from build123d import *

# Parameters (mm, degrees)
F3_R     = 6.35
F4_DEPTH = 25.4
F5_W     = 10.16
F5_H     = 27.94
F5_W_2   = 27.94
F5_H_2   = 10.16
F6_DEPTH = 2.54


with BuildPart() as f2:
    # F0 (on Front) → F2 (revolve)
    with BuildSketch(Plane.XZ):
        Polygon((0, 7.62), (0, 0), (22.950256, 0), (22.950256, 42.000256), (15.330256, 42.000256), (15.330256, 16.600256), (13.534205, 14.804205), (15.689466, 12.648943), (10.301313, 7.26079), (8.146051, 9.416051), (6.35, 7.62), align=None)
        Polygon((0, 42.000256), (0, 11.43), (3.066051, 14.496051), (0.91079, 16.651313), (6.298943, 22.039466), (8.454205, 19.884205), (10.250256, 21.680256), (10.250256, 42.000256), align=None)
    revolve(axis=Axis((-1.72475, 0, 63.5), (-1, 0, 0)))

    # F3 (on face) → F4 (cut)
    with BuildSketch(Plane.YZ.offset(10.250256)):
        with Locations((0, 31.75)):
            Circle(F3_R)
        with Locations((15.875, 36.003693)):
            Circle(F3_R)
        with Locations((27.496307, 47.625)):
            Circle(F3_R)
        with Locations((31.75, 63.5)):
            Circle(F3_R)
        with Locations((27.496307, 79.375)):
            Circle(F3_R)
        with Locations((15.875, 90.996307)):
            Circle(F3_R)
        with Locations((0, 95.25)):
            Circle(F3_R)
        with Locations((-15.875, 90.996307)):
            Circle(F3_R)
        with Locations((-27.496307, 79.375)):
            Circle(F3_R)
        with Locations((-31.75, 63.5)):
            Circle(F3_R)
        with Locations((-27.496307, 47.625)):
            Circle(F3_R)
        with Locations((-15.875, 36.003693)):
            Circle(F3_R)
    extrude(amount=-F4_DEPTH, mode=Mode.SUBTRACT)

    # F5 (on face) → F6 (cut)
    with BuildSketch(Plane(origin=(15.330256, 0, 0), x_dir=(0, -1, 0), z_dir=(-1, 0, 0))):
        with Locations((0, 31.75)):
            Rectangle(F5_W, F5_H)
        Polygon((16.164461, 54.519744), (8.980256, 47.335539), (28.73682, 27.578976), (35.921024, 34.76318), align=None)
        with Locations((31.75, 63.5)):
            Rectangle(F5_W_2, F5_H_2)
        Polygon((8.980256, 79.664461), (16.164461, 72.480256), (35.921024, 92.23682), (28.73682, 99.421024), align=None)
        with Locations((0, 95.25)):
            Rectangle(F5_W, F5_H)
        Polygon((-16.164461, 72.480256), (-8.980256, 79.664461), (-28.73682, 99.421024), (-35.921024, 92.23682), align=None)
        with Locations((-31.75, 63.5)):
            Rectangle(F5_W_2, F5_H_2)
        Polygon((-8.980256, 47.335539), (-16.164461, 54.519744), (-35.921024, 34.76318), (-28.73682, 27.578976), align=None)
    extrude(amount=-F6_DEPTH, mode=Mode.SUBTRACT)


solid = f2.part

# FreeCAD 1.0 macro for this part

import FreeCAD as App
import Part
import Sketcher

V = App.Vector
Q = App.Units.Quantity


def add_polygon(sketch, points):
    """Adds a closed chain of lines whose ends are joined by coincident constraints."""
    first, n = sketch.GeometryCount, len(points)
    for a, b in zip(points, points[1:] + points[:1]):
        sketch.addGeometry(Part.LineSegment(App.Vector(*a, 0), App.Vector(*b, 0)), False)
    for i in range(n):
        sketch.addConstraint(Sketcher.Constraint("Coincident", first + i, 2, first + (i + 1) % n, 1))

doc = App.newDocument("Part")
params = doc.addObject("Spreadsheet::Sheet", "Params")
for row, (alias, value) in enumerate([
    ("sketch1_height", "1 in"),
    ("sketch1_width", "0.3 in"),
    ("sketch1_height2", "0.8 in"),
    ("sketch1_length", "0.1 in"),
    ("sketch1_length2", "0.3 in"),
    ("revolution_angle", "360 deg"),
    ("sketch2_diameter", "0.5 in"),
    ("pocket1_length", "1 in"),
    ("sketch3_width", "0.4 in"),
    ("sketch3_width2", "1.1 in"),
    ("sketch3_length", "0.4 in"),
    ("sketch3_length2", "1.1 in"),
    ("pocket2_length", "0.1 in"),
], start=1):
    params.set(f"A{row}", alias)
    params.set(f"B{row}", "=" + value)
    params.setAlias(f"B{row}", alias)

body = doc.addObject("PartDesign::Body", "Body")
body.AllowCompound = True

sketch1 = doc.addObject("Sketcher::SketchObject", "Sketch")
body.addObject(sketch1)
sketch1.AttachmentSupport = (doc.XZ_Plane, [""])
sketch1.MapMode = "FlatFace"
add_polygon(sketch1, [(0, 7.6), (0, 0), (23, 0), (23, 42), (15.3, 42), (15.3, 16.6), (13.5, 14.8), (15.7, 12.6), (10.3, 7.3), (8.1, 9.4), (6.3, 7.6)])
add_polygon(sketch1, [(0, 42), (0, 11.4), (3.1, 14.5), (0.9, 16.7), (6.3, 22), (8.5, 19.9), (10.3, 21.7), (10.3, 42)])
sketch1.addGeometry(Part.LineSegment(V(23, 63.5, 0), V(0, 63.5, 0)), True)
sketch1.addConstraint([
    Sketcher.Constraint("Vertical", 0),
    Sketcher.Constraint("Horizontal", 1),
    Sketcher.Constraint("Vertical", 2),
    Sketcher.Constraint("Horizontal", 3),
    Sketcher.Constraint("Vertical", 4),
    Sketcher.Constraint("Horizontal", 10),
    Sketcher.Constraint("Vertical", 11),
    Sketcher.Constraint("Vertical", 17),
    Sketcher.Constraint("Horizontal", 18),
    Sketcher.Constraint("Horizontal", 19),
    Sketcher.Constraint("Coincident", 0, 2, -1, 1),
    Sketcher.Constraint("PointOnObject", 11, 2, -2),
    Sketcher.Constraint("PointOnObject", 19, 2, -2),
    Sketcher.Constraint("Perpendicular", 5, 6),
    Sketcher.Constraint("Perpendicular", 6, 7),
    Sketcher.Constraint("Perpendicular", 7, 8),
    Sketcher.Constraint("Perpendicular", 8, 9),
    Sketcher.Constraint("Parallel", 9, 12),
    Sketcher.Constraint("Perpendicular", 12, 13),
    Sketcher.Constraint("Perpendicular", 13, 14),
    Sketcher.Constraint("Perpendicular", 14, 15),
    Sketcher.Constraint("Perpendicular", 15, 16),
    Sketcher.Constraint("Horizontal", 3, 2, 17, 2),
    Sketcher.Constraint("Vertical", 2, 2, 19, 1),
    Sketcher.Constraint("Equal", 3, 0),
    Sketcher.Constraint("Equal", 6, 8),
    Sketcher.Constraint("Equal", 5, 9),
    Sketcher.Constraint("Equal", 8, 13),
    Sketcher.Constraint("Equal", 7, 14),
    Sketcher.Constraint("Equal", 13, 15),
    Sketcher.Constraint("Equal", 9, 16),
    Sketcher.Constraint("DistanceY", 4, 2, 4, 1, Q("1 in")),
    Sketcher.Constraint("DistanceX", 3, 2, 3, 1, Q("0.3 in")),
    Sketcher.Constraint("DistanceY", 17, 1, 17, 2, Q("0.8 in")),
    Sketcher.Constraint("Angle", 5, Q("-135 deg")),
    Sketcher.Constraint("Distance", 5, Q("0.1 in")),
    Sketcher.Constraint("Distance", 7, Q("0.3 in")),
    Sketcher.Constraint("DistanceX", 10, 2, 10, 1, Q("0.25 in")),
    Sketcher.Constraint("DistanceY", -1, 1, 19, 1, Q("2.5 in")),
    Sketcher.Constraint("DistanceX", 12, 2, 8, 2, Q("0.2 in")),
    Sketcher.Constraint("Distance", 6, Q("0.12 in")),
])
sketch1.setExpression("Constraints[50]", "Params.sketch1_height")
sketch1.setExpression("Constraints[51]", "Params.sketch1_width")
sketch1.setExpression("Constraints[52]", "Params.sketch1_height2")
sketch1.setExpression("Constraints[54]", "Params.sketch1_length")
sketch1.setExpression("Constraints[55]", "Params.sketch1_length2")
revolution = doc.addObject("PartDesign::Revolution", "Revolution")
body.addObject(revolution)
revolution.Profile = sketch1
revolution.ReferenceAxis = (sketch1, ["Axis0"])
revolution.setExpression("Angle", "Params.revolution_angle")

sketch2 = doc.addObject("Sketcher::SketchObject", "Sketch001")
body.addObject(sketch2)
sketch2.AttachmentSupport = (doc.YZ_Plane, [""])
sketch2.MapMode = "FlatFace"
sketch2.AttachmentOffset = App.Placement(V(0, 0, 10.250256), App.Rotation())
sketch2.addGeometry([
    Part.Circle(V(0, 32, 0), V(0, 0, 1), 6),
    Part.Circle(V(16, 36, 0), V(0, 0, 1), 6),
    Part.Circle(V(27, 48, 0), V(0, 0, 1), 6),
    Part.Circle(V(32, 64, 0), V(0, 0, 1), 6),
    Part.Circle(V(27, 79, 0), V(0, 0, 1), 6),
    Part.Circle(V(16, 91, 0), V(0, 0, 1), 6),
    Part.Circle(V(0, 95, 0), V(0, 0, 1), 6),
    Part.Circle(V(-16, 91, 0), V(0, 0, 1), 6),
    Part.Circle(V(-27, 79, 0), V(0, 0, 1), 6),
    Part.Circle(V(-32, 64, 0), V(0, 0, 1), 6),
    Part.Circle(V(-27, 48, 0), V(0, 0, 1), 6),
    Part.Circle(V(-16, 36, 0), V(0, 0, 1), 6),
], False)
sketch2.addConstraint([
    Sketcher.Constraint("Equal", 0, 1),
    Sketcher.Constraint("Equal", 1, 2),
    Sketcher.Constraint("Equal", 2, 3),
    Sketcher.Constraint("Equal", 3, 4),
    Sketcher.Constraint("Equal", 4, 5),
    Sketcher.Constraint("Equal", 5, 6),
    Sketcher.Constraint("Equal", 6, 7),
    Sketcher.Constraint("Equal", 7, 8),
    Sketcher.Constraint("Equal", 8, 9),
    Sketcher.Constraint("Equal", 9, 10),
    Sketcher.Constraint("Equal", 10, 11),
    Sketcher.Constraint("Symmetric", 5, 3, 7, 3, -2),
    Sketcher.Constraint("Symmetric", 4, 3, 8, 3, -2),
    Sketcher.Constraint("Symmetric", 3, 3, 9, 3, -2),
    Sketcher.Constraint("Symmetric", 2, 3, 10, 3, -2),
    Sketcher.Constraint("Symmetric", 1, 3, 11, 3, -2),
    Sketcher.Constraint("PointOnObject", 0, 3, -2),
    Sketcher.Constraint("PointOnObject", 6, 3, -2),
    Sketcher.Constraint("Vertical", 2, 3, 4, 3),
    Sketcher.Constraint("Vertical", 1, 3, 5, 3),
    Sketcher.Constraint("Diameter", 0, Q("0.5 in")),
    Sketcher.Constraint("DistanceY", -1, 1, 3, 3, Q("2.5 in")),
    Sketcher.Constraint("DistanceY", -1, 1, 0, 3, Q("1.25 in")),
    Sketcher.Constraint("DistanceX", -1, 1, 3, 3, Q("1.25 in")),
    Sketcher.Constraint("DistanceY", -1, 1, 6, 3, Q("3.75 in")),
    Sketcher.Constraint("DistanceY", 2, 3, 4, 3, Q("1.25 in")),
    Sketcher.Constraint("DistanceX", 7, 3, 5, 3, Q("1.25 in")),
    Sketcher.Constraint("DistanceY", -1, 1, 2, 3, Q("1.875 in")),
    Sketcher.Constraint("DistanceY", -1, 1, 1, 3, 36.003693),
    Sketcher.Constraint("DistanceX", -1, 1, 2, 3, 27.496307),
    Sketcher.Constraint("DistanceY", -1, 1, 5, 3, 90.996307),
])
sketch2.setExpression("Constraints[20]", "Params.sketch2_diameter")
pocket1 = doc.addObject("PartDesign::Pocket", "Pocket")
body.addObject(pocket1)
pocket1.Profile = sketch2
pocket1.setExpression("Length", "Params.pocket1_length")

sketch3 = doc.addObject("Sketcher::SketchObject", "Sketch002")
body.addObject(sketch3)
sketch3.AttachmentSupport = (doc.YZ_Plane, [""])
sketch3.MapMode = "FlatFace"
sketch3.AttachmentOffset = App.Placement(V(0, 0, 15.330256), App.Rotation())
add_polygon(sketch3, [(5, 46), (5, 18), (-5, 18), (-5, 46)])
add_polygon(sketch3, [(-16, 55), (-9, 47), (-29, 28), (-36, 35)])
add_polygon(sketch3, [(-18, 69), (-18, 58), (-46, 58), (-46, 69)])
add_polygon(sketch3, [(-9, 80), (-16, 72), (-36, 92), (-29, 99)])
add_polygon(sketch3, [(5, 109), (5, 81), (-5, 81), (-5, 109)])
add_polygon(sketch3, [(16, 72), (9, 80), (29, 99), (36, 92)])
add_polygon(sketch3, [(46, 69), (46, 58), (18, 58), (18, 69)])
add_polygon(sketch3, [(9, 47), (16, 55), (36, 35), (29, 28)])
sketch3.addConstraint([
    Sketcher.Constraint("Vertical", 0),
    Sketcher.Constraint("Horizontal", 1),
    Sketcher.Constraint("Vertical", 2),
    Sketcher.Constraint("Horizontal", 3),
    Sketcher.Constraint("Vertical", 8),
    Sketcher.Constraint("Horizontal", 9),
    Sketcher.Constraint("Vertical", 10),
    Sketcher.Constraint("Horizontal", 11),
    Sketcher.Constraint("Vertical", 16),
    Sketcher.Constraint("Horizontal", 17),
    Sketcher.Constraint("Vertical", 18),
    Sketcher.Constraint("Horizontal", 19),
    Sketcher.Constraint("Vertical", 24),
    Sketcher.Constraint("Horizontal", 25),
    Sketcher.Constraint("Vertical", 26),
    Sketcher.Constraint("Horizontal", 27),
    Sketcher.Constraint("Symmetric", 15, 2, 20, 2, -2),
    Sketcher.Constraint("Symmetric", 14, 2, 21, 2, -2),
    Sketcher.Constraint("Symmetric", 13, 2, 22, 2, -2),
    Sketcher.Constraint("Symmetric", 12, 2, 23, 2, -2),
    Sketcher.Constraint("Symmetric", 9, 2, 24, 2, -2),
    Sketcher.Constraint("Symmetric", 11, 2, 26, 2, -2),
    Sketcher.Constraint("Symmetric", 7, 2, 28, 2, -2),
    Sketcher.Constraint("Symmetric", 6, 2, 29, 2, -2),
    Sketcher.Constraint("Symmetric", 5, 2, 30, 2, -2),
    Sketcher.Constraint("Symmetric", 4, 2, 31, 2, -2),
    Sketcher.Constraint("Perpendicular", 4, 5),
    Sketcher.Constraint("Perpendicular", 5, 6),
    Sketcher.Constraint("Perpendicular", 6, 7),
    Sketcher.Constraint("Parallel", 7, 12),
    Sketcher.Constraint("Perpendicular", 12, 13),
    Sketcher.Constraint("Perpendicular", 13, 14),
    Sketcher.Constraint("Perpendicular", 14, 15),
    Sketcher.Constraint("Parallel", 15, 20),
    Sketcher.Constraint("Vertical", 7, 2, 12, 2),
    Sketcher.Constraint("Vertical", 6, 2, 13, 2),
    Sketcher.Constraint("Vertical", 5, 2, 14, 2),
    Sketcher.Constraint("Vertical", 3, 2, 16, 2),
    Sketcher.Constraint("Vertical", 2, 2, 17, 2),
    Sketcher.Constraint("Equal", 27, 0),
    Sketcher.Constraint("Equal", 19, 8),
    Sketcher.Constraint("Equal", 2, 16),
    Sketcher.Constraint("DistanceX", 1, 2, 1, 1, Q("0.4 in")),
    Sketcher.Constraint("DistanceX", 9, 2, 9, 1, Q("1.1 in")),
    Sketcher.Constraint("Distance", 4, Q("0.4 in")),
    Sketcher.Constraint("Distance", 5, Q("1.1 in")),
    Sketcher.Constraint("DistanceX", -1, 1, 0, 2, Q("0.2 in")),
    Sketcher.Constraint("DistanceY", -1, 1, 0, 2, Q("0.7 in")),
    Sketcher.Constraint("DistanceX", 8, 2, -1, 1, Q("0.7 in")),
    Sketcher.Constraint("DistanceY", -1, 1, 8, 2, Q("2.3 in")),
    Sketcher.Constraint("DistanceY", -1, 1, 16, 2, Q("3.2 in")),
    Sketcher.Constraint("DistanceY", -1, 1, 4, 2, 47.335539),
    Sketcher.Constraint("DistanceX", 5, 2, -1, 1, 28.73682),
    Sketcher.Constraint("DistanceY", -1, 1, 13, 2, 92.23682),
])
sketch3.setExpression("Constraints[74]", "Params.sketch3_width")
sketch3.setExpression("Constraints[75]", "Params.sketch3_width2")
sketch3.setExpression("Constraints[76]", "Params.sketch3_length")
sketch3.setExpression("Constraints[77]", "Params.sketch3_length2")
pocket2 = doc.addObject("PartDesign::Pocket", "Pocket001")
body.addObject(pocket2)
pocket2.Profile = sketch3
pocket2.setExpression("Length", "Params.pocket2_length")
pocket2.Reversed = True

doc.recompute()
